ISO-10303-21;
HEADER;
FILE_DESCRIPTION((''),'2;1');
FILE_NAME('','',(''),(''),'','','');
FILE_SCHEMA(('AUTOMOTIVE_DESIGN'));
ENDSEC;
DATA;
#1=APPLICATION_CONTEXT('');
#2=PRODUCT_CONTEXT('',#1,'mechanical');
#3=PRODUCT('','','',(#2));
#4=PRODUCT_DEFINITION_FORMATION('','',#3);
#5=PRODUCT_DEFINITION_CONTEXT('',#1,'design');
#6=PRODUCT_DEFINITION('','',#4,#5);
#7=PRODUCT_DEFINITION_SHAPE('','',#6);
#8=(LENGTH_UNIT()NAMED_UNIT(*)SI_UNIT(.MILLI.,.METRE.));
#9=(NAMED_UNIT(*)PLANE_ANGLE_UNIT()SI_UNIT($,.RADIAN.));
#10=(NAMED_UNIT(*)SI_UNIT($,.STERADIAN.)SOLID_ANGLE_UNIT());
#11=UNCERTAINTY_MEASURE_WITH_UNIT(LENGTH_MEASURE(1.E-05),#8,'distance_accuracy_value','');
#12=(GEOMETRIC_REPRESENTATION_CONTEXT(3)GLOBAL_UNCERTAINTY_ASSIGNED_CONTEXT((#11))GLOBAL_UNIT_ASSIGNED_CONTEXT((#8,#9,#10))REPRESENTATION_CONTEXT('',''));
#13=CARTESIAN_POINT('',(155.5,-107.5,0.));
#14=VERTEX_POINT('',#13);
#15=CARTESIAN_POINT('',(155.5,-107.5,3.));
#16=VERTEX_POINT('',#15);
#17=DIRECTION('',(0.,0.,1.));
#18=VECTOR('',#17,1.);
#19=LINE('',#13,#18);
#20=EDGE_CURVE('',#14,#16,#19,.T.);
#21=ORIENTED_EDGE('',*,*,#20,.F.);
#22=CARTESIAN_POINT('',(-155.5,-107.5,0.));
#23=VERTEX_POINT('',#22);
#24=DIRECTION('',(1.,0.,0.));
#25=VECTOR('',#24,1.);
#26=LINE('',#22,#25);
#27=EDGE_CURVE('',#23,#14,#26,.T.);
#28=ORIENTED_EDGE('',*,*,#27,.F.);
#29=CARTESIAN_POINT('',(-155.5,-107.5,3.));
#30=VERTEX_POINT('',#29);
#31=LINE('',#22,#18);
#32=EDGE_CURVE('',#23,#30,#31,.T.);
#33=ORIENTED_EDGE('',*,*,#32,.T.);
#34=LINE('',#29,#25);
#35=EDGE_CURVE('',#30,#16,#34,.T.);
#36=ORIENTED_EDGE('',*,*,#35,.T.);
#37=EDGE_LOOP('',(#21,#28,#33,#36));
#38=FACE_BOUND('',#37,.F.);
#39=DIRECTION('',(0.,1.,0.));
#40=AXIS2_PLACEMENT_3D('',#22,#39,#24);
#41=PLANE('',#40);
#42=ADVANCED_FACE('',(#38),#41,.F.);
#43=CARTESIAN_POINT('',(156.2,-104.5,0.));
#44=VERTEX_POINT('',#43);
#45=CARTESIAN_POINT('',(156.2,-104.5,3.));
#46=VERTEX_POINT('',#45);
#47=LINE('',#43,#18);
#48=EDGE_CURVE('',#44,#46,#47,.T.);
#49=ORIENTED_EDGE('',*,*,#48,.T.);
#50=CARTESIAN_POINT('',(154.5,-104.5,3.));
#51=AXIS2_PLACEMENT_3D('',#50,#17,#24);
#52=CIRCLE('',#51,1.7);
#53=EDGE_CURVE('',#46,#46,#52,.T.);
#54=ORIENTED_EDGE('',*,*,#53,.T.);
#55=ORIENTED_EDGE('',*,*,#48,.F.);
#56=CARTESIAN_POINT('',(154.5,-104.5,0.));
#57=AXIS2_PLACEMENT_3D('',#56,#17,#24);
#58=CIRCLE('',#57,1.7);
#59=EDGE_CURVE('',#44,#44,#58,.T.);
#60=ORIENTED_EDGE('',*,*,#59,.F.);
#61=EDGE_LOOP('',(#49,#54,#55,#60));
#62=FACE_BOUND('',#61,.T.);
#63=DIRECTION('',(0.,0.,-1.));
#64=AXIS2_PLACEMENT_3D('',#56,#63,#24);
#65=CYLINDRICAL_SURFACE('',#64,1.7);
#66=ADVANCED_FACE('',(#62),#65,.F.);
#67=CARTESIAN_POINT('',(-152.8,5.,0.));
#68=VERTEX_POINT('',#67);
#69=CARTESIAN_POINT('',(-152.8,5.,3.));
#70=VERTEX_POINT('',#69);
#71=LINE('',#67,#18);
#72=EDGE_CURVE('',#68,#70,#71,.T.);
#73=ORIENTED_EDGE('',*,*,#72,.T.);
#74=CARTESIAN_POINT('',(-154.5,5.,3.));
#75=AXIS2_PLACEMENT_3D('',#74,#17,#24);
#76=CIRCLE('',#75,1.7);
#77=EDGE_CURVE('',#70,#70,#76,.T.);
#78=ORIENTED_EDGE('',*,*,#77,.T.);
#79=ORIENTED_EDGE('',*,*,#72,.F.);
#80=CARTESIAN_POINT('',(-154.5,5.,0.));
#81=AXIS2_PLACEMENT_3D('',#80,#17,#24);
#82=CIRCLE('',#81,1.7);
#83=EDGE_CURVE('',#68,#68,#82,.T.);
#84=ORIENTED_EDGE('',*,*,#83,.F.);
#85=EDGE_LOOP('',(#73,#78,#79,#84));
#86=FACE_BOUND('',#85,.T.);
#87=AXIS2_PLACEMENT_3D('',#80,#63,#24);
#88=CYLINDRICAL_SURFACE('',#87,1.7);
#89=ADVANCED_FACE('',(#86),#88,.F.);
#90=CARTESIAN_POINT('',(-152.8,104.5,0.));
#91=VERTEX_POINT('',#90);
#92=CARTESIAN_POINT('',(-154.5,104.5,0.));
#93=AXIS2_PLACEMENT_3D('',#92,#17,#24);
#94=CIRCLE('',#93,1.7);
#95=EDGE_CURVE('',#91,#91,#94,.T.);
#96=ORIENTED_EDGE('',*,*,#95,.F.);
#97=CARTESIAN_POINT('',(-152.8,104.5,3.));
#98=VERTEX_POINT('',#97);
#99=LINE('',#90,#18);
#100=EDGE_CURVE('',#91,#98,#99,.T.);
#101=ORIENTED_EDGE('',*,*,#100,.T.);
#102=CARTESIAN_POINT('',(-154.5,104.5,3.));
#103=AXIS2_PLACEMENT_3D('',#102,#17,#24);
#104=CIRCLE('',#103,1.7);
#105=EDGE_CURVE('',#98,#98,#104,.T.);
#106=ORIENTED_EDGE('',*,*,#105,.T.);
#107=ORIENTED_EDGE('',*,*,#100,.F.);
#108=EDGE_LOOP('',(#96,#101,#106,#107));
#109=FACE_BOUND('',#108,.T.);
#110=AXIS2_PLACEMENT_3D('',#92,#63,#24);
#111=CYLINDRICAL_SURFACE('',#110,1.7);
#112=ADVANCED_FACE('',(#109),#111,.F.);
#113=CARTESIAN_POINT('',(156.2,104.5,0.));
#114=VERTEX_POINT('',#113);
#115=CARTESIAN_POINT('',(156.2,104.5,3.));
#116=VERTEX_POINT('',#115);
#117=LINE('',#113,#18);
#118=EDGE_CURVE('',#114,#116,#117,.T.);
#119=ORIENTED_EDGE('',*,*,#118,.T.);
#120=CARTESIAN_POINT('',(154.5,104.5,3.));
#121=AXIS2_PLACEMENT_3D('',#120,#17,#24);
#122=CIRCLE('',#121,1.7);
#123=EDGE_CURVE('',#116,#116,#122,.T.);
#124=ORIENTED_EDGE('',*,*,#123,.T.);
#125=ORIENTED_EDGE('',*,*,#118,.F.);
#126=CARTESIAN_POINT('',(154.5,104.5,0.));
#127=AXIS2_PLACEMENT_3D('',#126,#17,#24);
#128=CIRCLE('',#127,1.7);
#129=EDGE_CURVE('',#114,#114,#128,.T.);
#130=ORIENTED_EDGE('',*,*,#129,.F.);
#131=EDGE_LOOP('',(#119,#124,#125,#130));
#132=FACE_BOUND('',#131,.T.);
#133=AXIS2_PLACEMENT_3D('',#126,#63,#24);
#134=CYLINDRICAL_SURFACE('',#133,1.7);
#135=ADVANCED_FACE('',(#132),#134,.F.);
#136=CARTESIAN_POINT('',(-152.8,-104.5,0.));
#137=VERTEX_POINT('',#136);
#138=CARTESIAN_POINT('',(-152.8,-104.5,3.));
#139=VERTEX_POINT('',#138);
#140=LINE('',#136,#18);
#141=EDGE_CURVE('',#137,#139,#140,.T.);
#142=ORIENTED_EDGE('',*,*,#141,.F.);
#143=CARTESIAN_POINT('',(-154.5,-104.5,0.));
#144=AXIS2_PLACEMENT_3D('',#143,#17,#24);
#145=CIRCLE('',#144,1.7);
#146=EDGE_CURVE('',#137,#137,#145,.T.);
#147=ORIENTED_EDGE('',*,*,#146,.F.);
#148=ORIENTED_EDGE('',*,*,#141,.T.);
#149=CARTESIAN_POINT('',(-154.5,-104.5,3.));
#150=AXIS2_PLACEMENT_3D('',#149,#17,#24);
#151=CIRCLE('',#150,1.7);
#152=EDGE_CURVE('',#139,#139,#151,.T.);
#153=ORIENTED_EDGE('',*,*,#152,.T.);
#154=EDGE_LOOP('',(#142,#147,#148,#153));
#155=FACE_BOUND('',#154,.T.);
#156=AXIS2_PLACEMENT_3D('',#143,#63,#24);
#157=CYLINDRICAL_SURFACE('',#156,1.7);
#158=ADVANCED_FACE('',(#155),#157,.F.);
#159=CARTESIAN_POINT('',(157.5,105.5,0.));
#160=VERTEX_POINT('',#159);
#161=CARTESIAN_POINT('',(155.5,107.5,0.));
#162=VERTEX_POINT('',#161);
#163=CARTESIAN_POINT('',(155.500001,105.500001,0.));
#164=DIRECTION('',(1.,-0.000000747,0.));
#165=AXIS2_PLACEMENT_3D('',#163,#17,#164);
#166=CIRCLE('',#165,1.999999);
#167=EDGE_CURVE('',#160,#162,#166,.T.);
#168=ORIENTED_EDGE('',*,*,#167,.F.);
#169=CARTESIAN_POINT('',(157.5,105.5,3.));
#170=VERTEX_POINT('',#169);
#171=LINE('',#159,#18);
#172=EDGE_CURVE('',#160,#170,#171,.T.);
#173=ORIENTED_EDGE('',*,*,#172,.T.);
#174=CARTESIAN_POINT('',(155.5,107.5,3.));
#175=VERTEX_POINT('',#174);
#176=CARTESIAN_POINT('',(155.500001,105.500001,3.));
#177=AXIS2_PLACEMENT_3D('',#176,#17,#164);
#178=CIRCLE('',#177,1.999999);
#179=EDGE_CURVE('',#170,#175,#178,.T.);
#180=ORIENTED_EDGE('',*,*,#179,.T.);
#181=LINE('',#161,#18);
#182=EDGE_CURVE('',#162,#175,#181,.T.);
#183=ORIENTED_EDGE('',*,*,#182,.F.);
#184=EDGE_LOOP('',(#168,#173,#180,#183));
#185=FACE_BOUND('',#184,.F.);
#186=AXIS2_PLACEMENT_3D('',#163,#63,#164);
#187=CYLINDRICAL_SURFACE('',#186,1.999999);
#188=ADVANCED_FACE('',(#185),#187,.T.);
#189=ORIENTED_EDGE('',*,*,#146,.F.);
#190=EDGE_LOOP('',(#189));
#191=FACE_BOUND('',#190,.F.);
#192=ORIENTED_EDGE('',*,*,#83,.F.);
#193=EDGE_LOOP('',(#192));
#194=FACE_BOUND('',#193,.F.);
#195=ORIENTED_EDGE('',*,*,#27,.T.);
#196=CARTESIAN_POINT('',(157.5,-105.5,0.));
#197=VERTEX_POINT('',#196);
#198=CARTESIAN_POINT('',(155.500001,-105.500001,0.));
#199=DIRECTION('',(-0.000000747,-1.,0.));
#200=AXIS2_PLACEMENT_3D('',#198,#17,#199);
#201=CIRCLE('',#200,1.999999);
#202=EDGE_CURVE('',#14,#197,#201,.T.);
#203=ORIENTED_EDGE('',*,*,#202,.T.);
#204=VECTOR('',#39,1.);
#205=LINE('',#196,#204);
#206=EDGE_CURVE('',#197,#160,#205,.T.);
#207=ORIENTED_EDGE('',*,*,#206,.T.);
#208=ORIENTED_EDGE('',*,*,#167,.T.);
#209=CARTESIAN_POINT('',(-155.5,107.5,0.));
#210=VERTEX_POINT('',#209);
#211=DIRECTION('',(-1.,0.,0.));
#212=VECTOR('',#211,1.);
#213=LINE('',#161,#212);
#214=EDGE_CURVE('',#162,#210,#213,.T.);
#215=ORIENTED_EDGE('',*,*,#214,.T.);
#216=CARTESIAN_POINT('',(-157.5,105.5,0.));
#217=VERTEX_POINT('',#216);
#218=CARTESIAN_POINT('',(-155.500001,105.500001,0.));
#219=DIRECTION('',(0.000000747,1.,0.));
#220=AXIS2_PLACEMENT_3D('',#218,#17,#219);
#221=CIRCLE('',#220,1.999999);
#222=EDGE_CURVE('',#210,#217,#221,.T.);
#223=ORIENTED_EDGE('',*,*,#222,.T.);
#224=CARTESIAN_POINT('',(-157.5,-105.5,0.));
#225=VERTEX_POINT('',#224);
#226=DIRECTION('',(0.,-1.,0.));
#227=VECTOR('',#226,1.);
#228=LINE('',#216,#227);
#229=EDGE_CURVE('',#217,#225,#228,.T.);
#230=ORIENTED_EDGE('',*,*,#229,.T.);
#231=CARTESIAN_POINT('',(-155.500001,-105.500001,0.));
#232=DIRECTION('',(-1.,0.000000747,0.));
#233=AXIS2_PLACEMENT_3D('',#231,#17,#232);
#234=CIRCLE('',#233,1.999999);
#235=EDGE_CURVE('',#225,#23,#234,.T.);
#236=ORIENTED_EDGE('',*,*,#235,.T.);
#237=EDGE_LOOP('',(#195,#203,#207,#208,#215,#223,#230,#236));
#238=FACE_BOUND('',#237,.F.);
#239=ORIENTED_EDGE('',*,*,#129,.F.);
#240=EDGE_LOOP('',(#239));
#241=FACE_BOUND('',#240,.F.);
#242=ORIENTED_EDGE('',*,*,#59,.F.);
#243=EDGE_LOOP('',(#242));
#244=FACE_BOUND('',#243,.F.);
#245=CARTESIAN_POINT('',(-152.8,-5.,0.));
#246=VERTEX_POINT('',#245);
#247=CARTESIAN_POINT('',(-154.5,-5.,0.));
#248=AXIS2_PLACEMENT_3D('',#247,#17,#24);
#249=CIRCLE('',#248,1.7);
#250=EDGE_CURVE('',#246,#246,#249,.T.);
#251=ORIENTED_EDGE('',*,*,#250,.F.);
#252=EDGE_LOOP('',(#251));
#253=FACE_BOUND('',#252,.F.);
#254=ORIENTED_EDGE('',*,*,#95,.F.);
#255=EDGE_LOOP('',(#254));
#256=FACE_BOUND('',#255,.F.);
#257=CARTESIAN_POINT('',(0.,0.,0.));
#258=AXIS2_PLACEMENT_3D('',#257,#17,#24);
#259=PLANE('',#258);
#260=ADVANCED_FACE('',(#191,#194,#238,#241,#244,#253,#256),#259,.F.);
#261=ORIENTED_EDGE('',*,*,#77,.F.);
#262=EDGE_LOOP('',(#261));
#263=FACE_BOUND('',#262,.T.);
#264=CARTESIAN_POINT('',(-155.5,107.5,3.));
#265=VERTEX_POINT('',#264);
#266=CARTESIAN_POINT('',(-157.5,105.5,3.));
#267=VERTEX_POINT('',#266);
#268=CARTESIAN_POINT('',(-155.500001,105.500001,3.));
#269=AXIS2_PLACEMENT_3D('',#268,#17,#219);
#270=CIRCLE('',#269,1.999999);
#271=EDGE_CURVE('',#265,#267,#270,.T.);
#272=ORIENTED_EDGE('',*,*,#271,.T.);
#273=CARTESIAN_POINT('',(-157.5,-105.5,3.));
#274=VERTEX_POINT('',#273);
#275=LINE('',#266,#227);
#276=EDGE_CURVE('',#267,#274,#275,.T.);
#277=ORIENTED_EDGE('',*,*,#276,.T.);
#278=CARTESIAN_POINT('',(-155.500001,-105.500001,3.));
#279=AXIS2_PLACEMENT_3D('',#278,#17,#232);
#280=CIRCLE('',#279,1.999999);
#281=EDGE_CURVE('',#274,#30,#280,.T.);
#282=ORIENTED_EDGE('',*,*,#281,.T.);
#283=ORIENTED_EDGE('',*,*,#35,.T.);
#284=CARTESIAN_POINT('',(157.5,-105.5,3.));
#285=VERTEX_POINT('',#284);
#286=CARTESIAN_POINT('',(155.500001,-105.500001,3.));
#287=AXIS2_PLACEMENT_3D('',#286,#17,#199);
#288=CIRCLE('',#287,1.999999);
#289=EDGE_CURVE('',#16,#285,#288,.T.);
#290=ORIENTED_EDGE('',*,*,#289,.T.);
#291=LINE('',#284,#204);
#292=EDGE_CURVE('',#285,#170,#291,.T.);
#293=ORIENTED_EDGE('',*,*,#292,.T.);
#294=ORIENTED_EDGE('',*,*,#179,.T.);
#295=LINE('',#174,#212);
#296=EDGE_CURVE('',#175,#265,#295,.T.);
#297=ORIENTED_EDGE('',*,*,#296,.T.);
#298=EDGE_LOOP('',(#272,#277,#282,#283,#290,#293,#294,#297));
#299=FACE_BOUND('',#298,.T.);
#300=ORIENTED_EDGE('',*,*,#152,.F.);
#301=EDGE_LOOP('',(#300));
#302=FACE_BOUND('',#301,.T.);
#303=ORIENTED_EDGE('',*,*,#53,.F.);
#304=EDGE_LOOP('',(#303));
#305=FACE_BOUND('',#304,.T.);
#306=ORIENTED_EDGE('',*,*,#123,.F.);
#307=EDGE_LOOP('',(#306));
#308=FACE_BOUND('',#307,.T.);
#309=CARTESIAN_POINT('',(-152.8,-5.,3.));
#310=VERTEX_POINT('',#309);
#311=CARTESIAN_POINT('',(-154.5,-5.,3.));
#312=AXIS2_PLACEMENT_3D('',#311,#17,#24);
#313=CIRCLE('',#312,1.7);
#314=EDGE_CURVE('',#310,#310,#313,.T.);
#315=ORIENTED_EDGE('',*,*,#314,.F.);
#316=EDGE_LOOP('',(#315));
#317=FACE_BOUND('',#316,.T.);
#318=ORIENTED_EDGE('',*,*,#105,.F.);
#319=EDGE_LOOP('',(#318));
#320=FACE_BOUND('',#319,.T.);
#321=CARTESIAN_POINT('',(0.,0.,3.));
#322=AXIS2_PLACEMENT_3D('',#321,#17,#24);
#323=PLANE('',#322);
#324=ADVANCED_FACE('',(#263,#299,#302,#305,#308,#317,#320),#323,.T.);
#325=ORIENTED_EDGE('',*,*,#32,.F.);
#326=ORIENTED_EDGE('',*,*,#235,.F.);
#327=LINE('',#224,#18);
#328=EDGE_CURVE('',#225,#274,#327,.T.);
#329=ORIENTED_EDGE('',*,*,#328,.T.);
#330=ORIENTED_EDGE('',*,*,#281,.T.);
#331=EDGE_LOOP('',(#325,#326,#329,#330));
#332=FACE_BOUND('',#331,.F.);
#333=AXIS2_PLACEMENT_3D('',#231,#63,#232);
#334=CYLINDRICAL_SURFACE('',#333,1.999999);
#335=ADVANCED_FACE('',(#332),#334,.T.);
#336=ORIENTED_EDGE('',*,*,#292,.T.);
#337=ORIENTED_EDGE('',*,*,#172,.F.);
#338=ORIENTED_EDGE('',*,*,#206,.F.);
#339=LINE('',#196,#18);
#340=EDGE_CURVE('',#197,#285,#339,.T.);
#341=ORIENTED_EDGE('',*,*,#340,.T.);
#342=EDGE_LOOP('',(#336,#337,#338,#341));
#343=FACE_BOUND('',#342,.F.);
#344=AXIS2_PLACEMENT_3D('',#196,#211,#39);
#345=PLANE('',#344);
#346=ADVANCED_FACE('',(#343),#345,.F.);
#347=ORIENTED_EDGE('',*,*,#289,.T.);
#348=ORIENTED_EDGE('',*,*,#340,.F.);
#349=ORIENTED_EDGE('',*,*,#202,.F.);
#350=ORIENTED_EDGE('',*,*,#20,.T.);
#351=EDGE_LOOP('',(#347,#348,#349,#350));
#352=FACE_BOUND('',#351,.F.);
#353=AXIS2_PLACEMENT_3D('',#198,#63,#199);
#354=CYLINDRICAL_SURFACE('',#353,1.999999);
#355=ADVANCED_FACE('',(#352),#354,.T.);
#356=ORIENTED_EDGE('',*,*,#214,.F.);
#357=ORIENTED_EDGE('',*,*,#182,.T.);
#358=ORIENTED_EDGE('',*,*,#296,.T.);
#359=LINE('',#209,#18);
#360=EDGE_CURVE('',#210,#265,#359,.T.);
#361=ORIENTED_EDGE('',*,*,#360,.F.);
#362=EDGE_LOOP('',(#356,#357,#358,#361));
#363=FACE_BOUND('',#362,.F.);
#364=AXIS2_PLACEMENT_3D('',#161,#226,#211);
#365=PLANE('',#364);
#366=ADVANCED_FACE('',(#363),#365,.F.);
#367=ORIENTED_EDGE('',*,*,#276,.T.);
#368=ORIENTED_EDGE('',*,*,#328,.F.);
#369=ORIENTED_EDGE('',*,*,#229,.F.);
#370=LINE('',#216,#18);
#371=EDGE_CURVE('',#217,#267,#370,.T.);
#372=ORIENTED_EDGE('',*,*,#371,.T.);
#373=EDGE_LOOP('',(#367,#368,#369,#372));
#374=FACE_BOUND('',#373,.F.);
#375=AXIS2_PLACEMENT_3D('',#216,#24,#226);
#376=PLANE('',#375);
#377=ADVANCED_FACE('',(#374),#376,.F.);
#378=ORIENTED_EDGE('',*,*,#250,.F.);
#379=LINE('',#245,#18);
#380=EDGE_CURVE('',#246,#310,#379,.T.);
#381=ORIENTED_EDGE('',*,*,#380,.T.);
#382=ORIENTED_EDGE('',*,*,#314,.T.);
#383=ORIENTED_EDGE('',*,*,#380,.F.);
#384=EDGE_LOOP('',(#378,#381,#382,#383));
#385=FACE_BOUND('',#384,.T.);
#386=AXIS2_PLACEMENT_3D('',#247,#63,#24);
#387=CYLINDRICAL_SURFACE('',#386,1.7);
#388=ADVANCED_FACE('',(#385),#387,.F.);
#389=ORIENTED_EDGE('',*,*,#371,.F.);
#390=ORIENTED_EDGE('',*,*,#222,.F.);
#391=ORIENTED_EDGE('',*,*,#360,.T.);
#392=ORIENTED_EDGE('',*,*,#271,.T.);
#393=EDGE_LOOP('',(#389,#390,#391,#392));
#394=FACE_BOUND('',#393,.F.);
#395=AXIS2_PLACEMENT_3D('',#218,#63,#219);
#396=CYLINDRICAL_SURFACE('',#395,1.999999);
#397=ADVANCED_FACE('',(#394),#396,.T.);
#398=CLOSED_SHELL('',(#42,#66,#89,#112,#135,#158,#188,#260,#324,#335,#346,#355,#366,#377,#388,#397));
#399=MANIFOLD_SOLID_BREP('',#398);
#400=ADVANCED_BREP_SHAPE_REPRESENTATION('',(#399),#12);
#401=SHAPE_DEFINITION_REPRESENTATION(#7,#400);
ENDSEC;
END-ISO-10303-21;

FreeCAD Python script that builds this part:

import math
import FreeCAD as App
import Part
import Sketcher
from FreeCAD import Vector

doc = App.newDocument("Part")
body = doc.addObject("PartDesign::Body", "Body")

# Sketch on XY plane
sketch1 = body.newObject("Sketcher::SketchObject", "Sketch")
sketch1.AttachmentSupport = (doc.getObject("XY_Plane"), [""])
sketch1.MapMode = "FlatFace"
sketch1.addGeometry([
    Part.LineSegment(Vector(155.5, 107.5, 0), Vector(-155.5, 107.5, 0)),  # 0
    Part.ArcOfCircle(Part.Circle(Vector(-155.5, 105.5, 0), Vector(0, 0, 1), 2), math.radians(90), math.radians(180)),  # 1
    Part.LineSegment(Vector(-157.5, 105.5, 0), Vector(-157.5, -105.5, 0)),  # 2
    Part.ArcOfCircle(Part.Circle(Vector(-155.5, -105.5, 0), Vector(0, 0, 1), 2), math.radians(180), math.radians(270)),  # 3
    Part.LineSegment(Vector(-155.5, -107.5, 0), Vector(155.5, -107.5, 0)),  # 4
    Part.ArcOfCircle(Part.Circle(Vector(155.5, -105.5, 0), Vector(0, 0, 1), 2), math.radians(-90), math.radians(0)),  # 5
    Part.LineSegment(Vector(157.5, -105.5, 0), Vector(157.5, 105.5, 0)),  # 6
    Part.ArcOfCircle(Part.Circle(Vector(155.5, 105.5, 0), Vector(0, 0, 1), 2), math.radians(0), math.radians(90)),  # 7
    Part.Circle(Vector(-154.5, -104.5, 0), Vector(0, 0, 1), 1.7),  # 8
    Part.Circle(Vector(-154.5, -5, 0), Vector(0, 0, 1), 1.7),  # 9
    Part.Circle(Vector(154.5, -104.5, 0), Vector(0, 0, 1), 1.7),  # 10
    Part.Circle(Vector(-154.5, 5, 0), Vector(0, 0, 1), 1.7),  # 11
    Part.Circle(Vector(-154.5, 104.5, 0), Vector(0, 0, 1), 1.7),  # 12
    Part.Circle(Vector(154.5, 104.5, 0), Vector(0, 0, 1), 1.7),  # 13
], False)
sketch1.addConstraint([
    Sketcher.Constraint("Tangent", 0, 2, 1, 1),
    Sketcher.Constraint("Tangent", 1, 2, 2, 1),
    Sketcher.Constraint("Tangent", 2, 2, 3, 1),
    Sketcher.Constraint("Tangent", 3, 2, 4, 1),
    Sketcher.Constraint("Tangent", 4, 2, 5, 1),
    Sketcher.Constraint("Tangent", 5, 2, 6, 1),
    Sketcher.Constraint("Tangent", 6, 2, 7, 1),
    Sketcher.Constraint("Tangent", 7, 2, 0, 1),
    Sketcher.Constraint("Horizontal", 0),
    Sketcher.Constraint("Vertical", 2),
    Sketcher.Constraint("Horizontal", 4),
    Sketcher.Constraint("Vertical", 6),
    Sketcher.Constraint("Equal", 1, 3),
    Sketcher.Constraint("Equal", 3, 5),
    Sketcher.Constraint("Equal", 5, 7),
    Sketcher.Constraint("Equal", 8, 9),
    Sketcher.Constraint("Equal", 9, 10),
    Sketcher.Constraint("Equal", 10, 11),
    Sketcher.Constraint("Equal", 11, 12),
    Sketcher.Constraint("Equal", 12, 13),
    Sketcher.Constraint("Symmetric", 1, 3, 5, 3, -1, 1),
    Sketcher.Constraint("Symmetric", 10, 3, 12, 3, -1, 1),
    Sketcher.Constraint("Symmetric", 8, 3, 13, 3, -1, 1),
    Sketcher.Constraint("Symmetric", 8, 3, 10, 3, -2),
    Sketcher.Constraint("Symmetric", 9, 3, 11, 3, -1),
    Sketcher.Constraint("Vertical", 8, 3, 9, 3),
    Sketcher.Constraint("Radius", 1, 1.999999),
    Sketcher.Constraint("Diameter", 8, 3.4),
    Sketcher.Constraint("DistanceX", 0, 2, 0, 1, 311.0),
    Sketcher.Constraint("DistanceY", 2, 2, 2, 1, 211.0),
    Sketcher.Constraint("DistanceY", 9, 3, -1, 1, 5.0),
    Sketcher.Constraint("DistanceX", 3, 3, 8, 3, 1.000001),
    Sketcher.Constraint("DistanceY", 3, 3, 8, 3, 1.000001),
])
pad1 = body.newObject("PartDesign::Pad", "Pad")
pad1.Profile = sketch1
pad1.Length = 3

doc.recompute()
